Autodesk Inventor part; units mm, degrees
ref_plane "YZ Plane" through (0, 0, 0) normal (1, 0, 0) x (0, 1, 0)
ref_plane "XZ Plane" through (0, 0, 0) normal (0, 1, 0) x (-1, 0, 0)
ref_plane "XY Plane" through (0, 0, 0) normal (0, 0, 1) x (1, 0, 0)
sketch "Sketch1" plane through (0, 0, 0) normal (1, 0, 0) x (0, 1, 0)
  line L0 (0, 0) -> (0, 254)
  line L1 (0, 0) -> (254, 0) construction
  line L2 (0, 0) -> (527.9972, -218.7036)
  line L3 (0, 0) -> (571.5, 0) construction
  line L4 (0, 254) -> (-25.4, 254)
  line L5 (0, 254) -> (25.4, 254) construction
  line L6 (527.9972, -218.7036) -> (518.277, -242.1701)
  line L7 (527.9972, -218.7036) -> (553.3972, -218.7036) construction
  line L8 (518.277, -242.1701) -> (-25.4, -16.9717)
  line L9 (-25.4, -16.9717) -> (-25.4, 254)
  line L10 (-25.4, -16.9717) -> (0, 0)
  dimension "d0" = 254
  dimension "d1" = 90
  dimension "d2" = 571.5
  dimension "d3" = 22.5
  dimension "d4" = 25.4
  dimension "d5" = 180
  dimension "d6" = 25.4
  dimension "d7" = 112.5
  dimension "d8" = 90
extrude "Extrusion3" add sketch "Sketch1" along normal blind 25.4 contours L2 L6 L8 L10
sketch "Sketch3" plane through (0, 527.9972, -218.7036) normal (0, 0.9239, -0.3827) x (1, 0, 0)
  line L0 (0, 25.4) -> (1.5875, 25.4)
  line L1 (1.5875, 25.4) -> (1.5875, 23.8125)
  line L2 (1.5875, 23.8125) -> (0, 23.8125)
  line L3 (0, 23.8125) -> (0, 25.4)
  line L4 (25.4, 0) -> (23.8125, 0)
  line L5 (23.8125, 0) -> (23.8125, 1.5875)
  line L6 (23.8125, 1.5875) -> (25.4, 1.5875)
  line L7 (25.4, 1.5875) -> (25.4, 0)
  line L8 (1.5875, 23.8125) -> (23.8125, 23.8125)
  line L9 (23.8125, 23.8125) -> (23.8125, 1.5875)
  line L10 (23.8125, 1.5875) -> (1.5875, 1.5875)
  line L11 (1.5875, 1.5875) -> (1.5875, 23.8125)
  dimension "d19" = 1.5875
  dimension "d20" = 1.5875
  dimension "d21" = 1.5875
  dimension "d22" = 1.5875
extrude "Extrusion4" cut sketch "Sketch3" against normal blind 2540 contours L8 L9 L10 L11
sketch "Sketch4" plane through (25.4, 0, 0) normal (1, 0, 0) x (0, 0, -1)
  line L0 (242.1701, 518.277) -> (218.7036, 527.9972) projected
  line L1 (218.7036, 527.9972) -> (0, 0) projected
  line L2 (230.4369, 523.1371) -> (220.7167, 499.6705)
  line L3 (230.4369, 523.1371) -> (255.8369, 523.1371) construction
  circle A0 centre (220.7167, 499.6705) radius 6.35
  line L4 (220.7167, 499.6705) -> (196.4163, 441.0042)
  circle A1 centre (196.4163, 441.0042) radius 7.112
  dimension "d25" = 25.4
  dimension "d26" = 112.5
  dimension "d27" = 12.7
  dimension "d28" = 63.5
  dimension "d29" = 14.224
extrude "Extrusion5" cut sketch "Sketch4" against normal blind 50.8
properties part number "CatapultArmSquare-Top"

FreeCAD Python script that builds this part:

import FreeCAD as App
import Part
import Sketcher
Q = App.Units.Quantity

doc = App.newDocument("Part")
params = doc.addObject("Spreadsheet::Sheet", "Params")
for row, (alias, value) in enumerate([
    ("sketch1_length", "1 in"),
    ("sketch1_length2", "22.5 in"),
    ("pad1_length", "1 in"),
    ("sketch2_width", "0.875 in"),
    ("pocket1_length", "100 in"),
    ("sketch3_diameter", "0.5 in"),
    ("sketch3_diameter2", "0.56 in"),
    ("pocket2_length", "2 in"),
], start=1):
    params.set(f"A{row}", alias)
    params.set(f"B{row}", "=" + value)
    params.setAlias(f"B{row}", alias)

body = doc.addObject("PartDesign::Body", "Body")

# Sketch on YZ plane
sketch1 = doc.addObject("Sketcher::SketchObject", "Sketch")
body.addObject(sketch1)
sketch1.AttachmentSupport = (doc.YZ_Plane, [""])
sketch1.MapMode = "FlatFace"
sketch1.addGeometry([
    Part.LineSegment(App.Vector(528, -219, 0), App.Vector(0, 0, 0)),
    Part.LineSegment(App.Vector(0, 0, 0), App.Vector(-25, -17, 0)),
    Part.LineSegment(App.Vector(-25, -17, 0), App.Vector(518, -242, 0)),
    Part.LineSegment(App.Vector(518, -242, 0), App.Vector(528, -219, 0)),
], False)
sketch1.addConstraint([
    Sketcher.Constraint("Coincident", 0, 2, 1, 1),
    Sketcher.Constraint("Coincident", 1, 2, 2, 1),
    Sketcher.Constraint("Coincident", 2, 2, 3, 1),
    Sketcher.Constraint("Coincident", 3, 2, 0, 1),
    Sketcher.Constraint("Coincident", 0, 2, -1, 1),
    Sketcher.Constraint("Parallel", 0, 2),
    Sketcher.Constraint("Perpendicular", 2, 3),
    Sketcher.Constraint("Distance", 3, Q("1 in")),
    Sketcher.Constraint("DistanceX", 1, 2, -1, 1, Q("1 in")),
    Sketcher.Constraint("Distance", 0, Q("22.5 in")),
    Sketcher.Constraint("Angle", 2, Q("-22.5 deg")),
])
sketch1.setExpression("Constraints[7]", "Params.sketch1_length")
sketch1.setExpression("Constraints[9]", "Params.sketch1_length2")
pad1 = doc.addObject("PartDesign::Pad", "Pad")
body.addObject(pad1)
pad1.Profile = sketch1
pad1.setExpression("Length", "Params.pad1_length")

# Sketch on an angled plane
sketch2 = doc.addObject("Sketcher::SketchObject", "Sketch001")
body.addObject(sketch2)
sketch2.Placement = App.Placement(App.Vector(0, 527.9972, -218.7036), App.Rotation(App.Vector(1, 0, 0), App.Vector(0, -0.382683432, -0.923879533), App.Vector(0, 0.923879533, -0.382683432), "ZXY"))
sketch2.addGeometry([
    Part.LineSegment(App.Vector(24, 24, 0), App.Vector(2, 24, 0)),
    Part.LineSegment(App.Vector(2, 24, 0), App.Vector(2, 2, 0)),
    Part.LineSegment(App.Vector(2, 2, 0), App.Vector(24, 2, 0)),
    Part.LineSegment(App.Vector(24, 2, 0), App.Vector(24, 24, 0)),
], False)
sketch2.addConstraint([
    Sketcher.Constraint("Coincident", 0, 2, 1, 1),
    Sketcher.Constraint("Coincident", 1, 2, 2, 1),
    Sketcher.Constraint("Coincident", 2, 2, 3, 1),
    Sketcher.Constraint("Coincident", 3, 2, 0, 1),
    Sketcher.Constraint("Horizontal", 0),
    Sketcher.Constraint("Vertical", 1),
    Sketcher.Constraint("Horizontal", 2),
    Sketcher.Constraint("Vertical", 3),
    Sketcher.Constraint("Equal", 2, 1),
    Sketcher.Constraint("DistanceX", -1, 1, 0, 2, Q("0.0625 in")),
    Sketcher.Constraint("DistanceY", -1, 1, 1, 2, Q("0.0625 in")),
    Sketcher.Constraint("DistanceX", 0, 2, 0, 1, Q("0.875 in")),
])
sketch2.setExpression("Constraints[11]", "Params.sketch2_width")
pocket1 = doc.addObject("PartDesign::Pocket", "Pocket")
body.addObject(pocket1)
pocket1.Profile = sketch2
pocket1.setExpression("Length", "Params.pocket1_length")

# Sketch on YZ plane
sketch3 = doc.addObject("Sketcher::SketchObject", "Sketch002")
body.addObject(sketch3)
sketch3.AttachmentSupport = (doc.YZ_Plane, [""])
sketch3.MapMode = "FlatFace"
sketch3.AttachmentOffset = App.Placement(App.Vector(0, 0, 1 * 25.4), App.Rotation())
sketch3.addGeometry([
    Part.Circle(App.Vector(500, -221, 0), App.Vector(0, 0, 1), 6),
    Part.Circle(App.Vector(441, -196, 0), App.Vector(0, 0, 1), 7),
], False)
sketch3.addConstraint([
    Sketcher.Constraint("Diameter", 0, Q("0.5 in")),
    Sketcher.Constraint("Diameter", 1, Q("0.56 in")),
    Sketcher.Constraint("DistanceX", 1, 3, 0, 3, Q("2.3097 in")),
    Sketcher.Constraint("DistanceY", 0, 3, 1, 3, Q("0.9567 in")),
    Sketcher.Constraint("DistanceX", -1, 1, 0, 3, 499.6705),
    Sketcher.Constraint("DistanceY", 0, 3, -1, 1, 220.7167),
])
sketch3.setExpression("Constraints[0]", "Params.sketch3_diameter")
sketch3.setExpression("Constraints[1]", "Params.sketch3_diameter2")
pocket2 = doc.addObject("PartDesign::Pocket", "Pocket001")
body.addObject(pocket2)
pocket2.Profile = sketch3
pocket2.setExpression("Length", "Params.pocket2_length")

doc.recompute()
